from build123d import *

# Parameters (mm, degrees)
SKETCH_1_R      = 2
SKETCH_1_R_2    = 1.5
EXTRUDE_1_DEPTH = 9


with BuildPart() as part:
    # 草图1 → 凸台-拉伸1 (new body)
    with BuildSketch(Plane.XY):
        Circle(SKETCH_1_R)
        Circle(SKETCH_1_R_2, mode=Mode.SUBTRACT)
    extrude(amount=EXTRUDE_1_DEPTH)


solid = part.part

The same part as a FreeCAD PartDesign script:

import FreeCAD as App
import Part
import Sketcher

V = App.Vector
Q = App.Units.Quantity

doc = App.newDocument("Part")
body = doc.addObject("PartDesign::Body", "Body")

# Sketch on XY plane
sketch1 = body.newObject("Sketcher::SketchObject", "Sketch")
sketch1.AttachmentSupport = (doc.getObject("XY_Plane"), [""])
sketch1.MapMode = "FlatFace"
sketch1.addGeometry(Part.Circle(V(0, 0, 0), V(0, 0, 1), 2), False)
sketch1.addGeometry(Part.Circle(V(0, 0, 0), V(0, 0, 1), 1.5), False)
sketch1.addConstraint(Sketcher.Constraint("Coincident", 0, 3, -1, 1))
sketch1.addConstraint(Sketcher.Constraint("Coincident", 1, 3, -1, 1))
sketch1.addConstraint(Sketcher.Constraint("Diameter", 0, Q("4 mm")))
sketch1.addConstraint(Sketcher.Constraint("Diameter", 1, Q("3 mm")))
pad1 = body.newObject("PartDesign::Pad", "Pad")
pad1.Profile = sketch1
pad1.Length = 9

doc.recompute()
